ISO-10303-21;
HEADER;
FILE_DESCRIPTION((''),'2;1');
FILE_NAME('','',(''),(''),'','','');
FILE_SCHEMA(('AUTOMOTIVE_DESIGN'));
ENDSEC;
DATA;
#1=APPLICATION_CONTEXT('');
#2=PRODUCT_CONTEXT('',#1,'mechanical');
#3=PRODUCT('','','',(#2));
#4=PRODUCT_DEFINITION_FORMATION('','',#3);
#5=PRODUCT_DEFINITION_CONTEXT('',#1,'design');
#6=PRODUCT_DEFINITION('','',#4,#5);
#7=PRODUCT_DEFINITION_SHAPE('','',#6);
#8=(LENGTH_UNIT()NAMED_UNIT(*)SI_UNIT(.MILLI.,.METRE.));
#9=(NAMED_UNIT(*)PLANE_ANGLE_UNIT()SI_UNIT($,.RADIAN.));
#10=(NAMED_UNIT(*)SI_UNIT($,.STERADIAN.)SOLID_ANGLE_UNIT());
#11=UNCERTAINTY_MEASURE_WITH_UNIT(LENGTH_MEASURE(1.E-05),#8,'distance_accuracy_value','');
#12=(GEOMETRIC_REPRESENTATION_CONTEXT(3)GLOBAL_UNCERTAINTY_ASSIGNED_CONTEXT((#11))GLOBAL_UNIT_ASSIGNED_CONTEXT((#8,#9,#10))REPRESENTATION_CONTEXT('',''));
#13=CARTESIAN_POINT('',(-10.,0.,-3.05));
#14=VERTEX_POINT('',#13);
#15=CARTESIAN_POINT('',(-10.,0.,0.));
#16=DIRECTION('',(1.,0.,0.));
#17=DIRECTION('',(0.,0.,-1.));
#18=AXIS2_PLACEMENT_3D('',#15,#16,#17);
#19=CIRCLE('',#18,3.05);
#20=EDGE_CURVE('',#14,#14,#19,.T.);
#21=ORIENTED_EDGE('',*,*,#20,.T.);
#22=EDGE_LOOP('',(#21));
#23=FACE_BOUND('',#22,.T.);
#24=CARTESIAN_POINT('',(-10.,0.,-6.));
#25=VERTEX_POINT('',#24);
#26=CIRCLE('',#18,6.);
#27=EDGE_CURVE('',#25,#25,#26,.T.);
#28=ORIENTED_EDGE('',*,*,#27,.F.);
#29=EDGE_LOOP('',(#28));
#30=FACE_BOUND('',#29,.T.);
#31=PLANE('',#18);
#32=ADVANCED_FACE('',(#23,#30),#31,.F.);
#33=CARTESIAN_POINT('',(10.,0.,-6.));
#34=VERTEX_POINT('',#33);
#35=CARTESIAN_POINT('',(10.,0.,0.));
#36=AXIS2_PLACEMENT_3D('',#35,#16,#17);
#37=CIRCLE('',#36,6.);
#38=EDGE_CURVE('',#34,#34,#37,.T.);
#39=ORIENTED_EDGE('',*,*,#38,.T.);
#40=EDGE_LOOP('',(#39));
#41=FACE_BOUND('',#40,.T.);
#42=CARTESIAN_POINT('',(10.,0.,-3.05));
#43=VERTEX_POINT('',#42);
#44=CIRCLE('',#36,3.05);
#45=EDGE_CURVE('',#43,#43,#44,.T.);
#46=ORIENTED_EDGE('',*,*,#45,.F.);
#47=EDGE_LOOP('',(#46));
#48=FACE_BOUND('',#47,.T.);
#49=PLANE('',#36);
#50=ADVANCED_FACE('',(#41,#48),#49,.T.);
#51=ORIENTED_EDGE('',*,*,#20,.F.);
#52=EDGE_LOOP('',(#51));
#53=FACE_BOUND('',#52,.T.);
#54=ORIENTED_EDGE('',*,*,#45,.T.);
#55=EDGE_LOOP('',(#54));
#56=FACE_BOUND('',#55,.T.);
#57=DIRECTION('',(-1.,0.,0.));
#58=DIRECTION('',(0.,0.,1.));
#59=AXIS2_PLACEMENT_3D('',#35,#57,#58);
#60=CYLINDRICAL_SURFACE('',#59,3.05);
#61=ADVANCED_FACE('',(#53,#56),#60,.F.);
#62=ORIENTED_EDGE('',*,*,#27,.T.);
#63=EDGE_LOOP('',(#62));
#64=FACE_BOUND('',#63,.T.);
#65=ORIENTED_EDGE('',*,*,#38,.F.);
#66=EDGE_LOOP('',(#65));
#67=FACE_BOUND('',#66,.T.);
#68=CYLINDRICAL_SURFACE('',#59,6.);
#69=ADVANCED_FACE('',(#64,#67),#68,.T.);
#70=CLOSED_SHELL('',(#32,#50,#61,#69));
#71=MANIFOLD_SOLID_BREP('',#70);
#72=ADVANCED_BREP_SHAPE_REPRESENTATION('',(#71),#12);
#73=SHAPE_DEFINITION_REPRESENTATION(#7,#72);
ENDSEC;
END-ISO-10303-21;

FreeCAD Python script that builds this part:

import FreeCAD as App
import Part
import Sketcher
Q = App.Units.Quantity

doc = App.newDocument("Part")
body = doc.addObject("PartDesign::Body", "Body")

# Sketch on YZ plane
sketch1 = body.newObject("Sketcher::SketchObject", "Sketch")
sketch1.AttachmentSupport = (doc.getObject("YZ_Plane"), [""])
sketch1.MapMode = "FlatFace"
sketch1.addGeometry(Part.Circle(App.Vector(0, 0, 0), App.Vector(0, 0, 1), 6), False)
sketch1.addGeometry(Part.Circle(App.Vector(0, 0, 0), App.Vector(0, 0, 1), 3), False)
sketch1.addConstraint(Sketcher.Constraint("Coincident", 0, 3, -1, 1))
sketch1.addConstraint(Sketcher.Constraint("Coincident", 1, 3, -1, 1))
sketch1.addConstraint(Sketcher.Constraint("Diameter", 0, Q("12 mm")))
sketch1.addConstraint(Sketcher.Constraint("Diameter", 1, Q("6.1 mm")))
pad1 = body.newObject("PartDesign::Pad", "Pad")
pad1.Profile = sketch1
pad1.Length = 20
pad1.Midplane = True

doc.recompute()
